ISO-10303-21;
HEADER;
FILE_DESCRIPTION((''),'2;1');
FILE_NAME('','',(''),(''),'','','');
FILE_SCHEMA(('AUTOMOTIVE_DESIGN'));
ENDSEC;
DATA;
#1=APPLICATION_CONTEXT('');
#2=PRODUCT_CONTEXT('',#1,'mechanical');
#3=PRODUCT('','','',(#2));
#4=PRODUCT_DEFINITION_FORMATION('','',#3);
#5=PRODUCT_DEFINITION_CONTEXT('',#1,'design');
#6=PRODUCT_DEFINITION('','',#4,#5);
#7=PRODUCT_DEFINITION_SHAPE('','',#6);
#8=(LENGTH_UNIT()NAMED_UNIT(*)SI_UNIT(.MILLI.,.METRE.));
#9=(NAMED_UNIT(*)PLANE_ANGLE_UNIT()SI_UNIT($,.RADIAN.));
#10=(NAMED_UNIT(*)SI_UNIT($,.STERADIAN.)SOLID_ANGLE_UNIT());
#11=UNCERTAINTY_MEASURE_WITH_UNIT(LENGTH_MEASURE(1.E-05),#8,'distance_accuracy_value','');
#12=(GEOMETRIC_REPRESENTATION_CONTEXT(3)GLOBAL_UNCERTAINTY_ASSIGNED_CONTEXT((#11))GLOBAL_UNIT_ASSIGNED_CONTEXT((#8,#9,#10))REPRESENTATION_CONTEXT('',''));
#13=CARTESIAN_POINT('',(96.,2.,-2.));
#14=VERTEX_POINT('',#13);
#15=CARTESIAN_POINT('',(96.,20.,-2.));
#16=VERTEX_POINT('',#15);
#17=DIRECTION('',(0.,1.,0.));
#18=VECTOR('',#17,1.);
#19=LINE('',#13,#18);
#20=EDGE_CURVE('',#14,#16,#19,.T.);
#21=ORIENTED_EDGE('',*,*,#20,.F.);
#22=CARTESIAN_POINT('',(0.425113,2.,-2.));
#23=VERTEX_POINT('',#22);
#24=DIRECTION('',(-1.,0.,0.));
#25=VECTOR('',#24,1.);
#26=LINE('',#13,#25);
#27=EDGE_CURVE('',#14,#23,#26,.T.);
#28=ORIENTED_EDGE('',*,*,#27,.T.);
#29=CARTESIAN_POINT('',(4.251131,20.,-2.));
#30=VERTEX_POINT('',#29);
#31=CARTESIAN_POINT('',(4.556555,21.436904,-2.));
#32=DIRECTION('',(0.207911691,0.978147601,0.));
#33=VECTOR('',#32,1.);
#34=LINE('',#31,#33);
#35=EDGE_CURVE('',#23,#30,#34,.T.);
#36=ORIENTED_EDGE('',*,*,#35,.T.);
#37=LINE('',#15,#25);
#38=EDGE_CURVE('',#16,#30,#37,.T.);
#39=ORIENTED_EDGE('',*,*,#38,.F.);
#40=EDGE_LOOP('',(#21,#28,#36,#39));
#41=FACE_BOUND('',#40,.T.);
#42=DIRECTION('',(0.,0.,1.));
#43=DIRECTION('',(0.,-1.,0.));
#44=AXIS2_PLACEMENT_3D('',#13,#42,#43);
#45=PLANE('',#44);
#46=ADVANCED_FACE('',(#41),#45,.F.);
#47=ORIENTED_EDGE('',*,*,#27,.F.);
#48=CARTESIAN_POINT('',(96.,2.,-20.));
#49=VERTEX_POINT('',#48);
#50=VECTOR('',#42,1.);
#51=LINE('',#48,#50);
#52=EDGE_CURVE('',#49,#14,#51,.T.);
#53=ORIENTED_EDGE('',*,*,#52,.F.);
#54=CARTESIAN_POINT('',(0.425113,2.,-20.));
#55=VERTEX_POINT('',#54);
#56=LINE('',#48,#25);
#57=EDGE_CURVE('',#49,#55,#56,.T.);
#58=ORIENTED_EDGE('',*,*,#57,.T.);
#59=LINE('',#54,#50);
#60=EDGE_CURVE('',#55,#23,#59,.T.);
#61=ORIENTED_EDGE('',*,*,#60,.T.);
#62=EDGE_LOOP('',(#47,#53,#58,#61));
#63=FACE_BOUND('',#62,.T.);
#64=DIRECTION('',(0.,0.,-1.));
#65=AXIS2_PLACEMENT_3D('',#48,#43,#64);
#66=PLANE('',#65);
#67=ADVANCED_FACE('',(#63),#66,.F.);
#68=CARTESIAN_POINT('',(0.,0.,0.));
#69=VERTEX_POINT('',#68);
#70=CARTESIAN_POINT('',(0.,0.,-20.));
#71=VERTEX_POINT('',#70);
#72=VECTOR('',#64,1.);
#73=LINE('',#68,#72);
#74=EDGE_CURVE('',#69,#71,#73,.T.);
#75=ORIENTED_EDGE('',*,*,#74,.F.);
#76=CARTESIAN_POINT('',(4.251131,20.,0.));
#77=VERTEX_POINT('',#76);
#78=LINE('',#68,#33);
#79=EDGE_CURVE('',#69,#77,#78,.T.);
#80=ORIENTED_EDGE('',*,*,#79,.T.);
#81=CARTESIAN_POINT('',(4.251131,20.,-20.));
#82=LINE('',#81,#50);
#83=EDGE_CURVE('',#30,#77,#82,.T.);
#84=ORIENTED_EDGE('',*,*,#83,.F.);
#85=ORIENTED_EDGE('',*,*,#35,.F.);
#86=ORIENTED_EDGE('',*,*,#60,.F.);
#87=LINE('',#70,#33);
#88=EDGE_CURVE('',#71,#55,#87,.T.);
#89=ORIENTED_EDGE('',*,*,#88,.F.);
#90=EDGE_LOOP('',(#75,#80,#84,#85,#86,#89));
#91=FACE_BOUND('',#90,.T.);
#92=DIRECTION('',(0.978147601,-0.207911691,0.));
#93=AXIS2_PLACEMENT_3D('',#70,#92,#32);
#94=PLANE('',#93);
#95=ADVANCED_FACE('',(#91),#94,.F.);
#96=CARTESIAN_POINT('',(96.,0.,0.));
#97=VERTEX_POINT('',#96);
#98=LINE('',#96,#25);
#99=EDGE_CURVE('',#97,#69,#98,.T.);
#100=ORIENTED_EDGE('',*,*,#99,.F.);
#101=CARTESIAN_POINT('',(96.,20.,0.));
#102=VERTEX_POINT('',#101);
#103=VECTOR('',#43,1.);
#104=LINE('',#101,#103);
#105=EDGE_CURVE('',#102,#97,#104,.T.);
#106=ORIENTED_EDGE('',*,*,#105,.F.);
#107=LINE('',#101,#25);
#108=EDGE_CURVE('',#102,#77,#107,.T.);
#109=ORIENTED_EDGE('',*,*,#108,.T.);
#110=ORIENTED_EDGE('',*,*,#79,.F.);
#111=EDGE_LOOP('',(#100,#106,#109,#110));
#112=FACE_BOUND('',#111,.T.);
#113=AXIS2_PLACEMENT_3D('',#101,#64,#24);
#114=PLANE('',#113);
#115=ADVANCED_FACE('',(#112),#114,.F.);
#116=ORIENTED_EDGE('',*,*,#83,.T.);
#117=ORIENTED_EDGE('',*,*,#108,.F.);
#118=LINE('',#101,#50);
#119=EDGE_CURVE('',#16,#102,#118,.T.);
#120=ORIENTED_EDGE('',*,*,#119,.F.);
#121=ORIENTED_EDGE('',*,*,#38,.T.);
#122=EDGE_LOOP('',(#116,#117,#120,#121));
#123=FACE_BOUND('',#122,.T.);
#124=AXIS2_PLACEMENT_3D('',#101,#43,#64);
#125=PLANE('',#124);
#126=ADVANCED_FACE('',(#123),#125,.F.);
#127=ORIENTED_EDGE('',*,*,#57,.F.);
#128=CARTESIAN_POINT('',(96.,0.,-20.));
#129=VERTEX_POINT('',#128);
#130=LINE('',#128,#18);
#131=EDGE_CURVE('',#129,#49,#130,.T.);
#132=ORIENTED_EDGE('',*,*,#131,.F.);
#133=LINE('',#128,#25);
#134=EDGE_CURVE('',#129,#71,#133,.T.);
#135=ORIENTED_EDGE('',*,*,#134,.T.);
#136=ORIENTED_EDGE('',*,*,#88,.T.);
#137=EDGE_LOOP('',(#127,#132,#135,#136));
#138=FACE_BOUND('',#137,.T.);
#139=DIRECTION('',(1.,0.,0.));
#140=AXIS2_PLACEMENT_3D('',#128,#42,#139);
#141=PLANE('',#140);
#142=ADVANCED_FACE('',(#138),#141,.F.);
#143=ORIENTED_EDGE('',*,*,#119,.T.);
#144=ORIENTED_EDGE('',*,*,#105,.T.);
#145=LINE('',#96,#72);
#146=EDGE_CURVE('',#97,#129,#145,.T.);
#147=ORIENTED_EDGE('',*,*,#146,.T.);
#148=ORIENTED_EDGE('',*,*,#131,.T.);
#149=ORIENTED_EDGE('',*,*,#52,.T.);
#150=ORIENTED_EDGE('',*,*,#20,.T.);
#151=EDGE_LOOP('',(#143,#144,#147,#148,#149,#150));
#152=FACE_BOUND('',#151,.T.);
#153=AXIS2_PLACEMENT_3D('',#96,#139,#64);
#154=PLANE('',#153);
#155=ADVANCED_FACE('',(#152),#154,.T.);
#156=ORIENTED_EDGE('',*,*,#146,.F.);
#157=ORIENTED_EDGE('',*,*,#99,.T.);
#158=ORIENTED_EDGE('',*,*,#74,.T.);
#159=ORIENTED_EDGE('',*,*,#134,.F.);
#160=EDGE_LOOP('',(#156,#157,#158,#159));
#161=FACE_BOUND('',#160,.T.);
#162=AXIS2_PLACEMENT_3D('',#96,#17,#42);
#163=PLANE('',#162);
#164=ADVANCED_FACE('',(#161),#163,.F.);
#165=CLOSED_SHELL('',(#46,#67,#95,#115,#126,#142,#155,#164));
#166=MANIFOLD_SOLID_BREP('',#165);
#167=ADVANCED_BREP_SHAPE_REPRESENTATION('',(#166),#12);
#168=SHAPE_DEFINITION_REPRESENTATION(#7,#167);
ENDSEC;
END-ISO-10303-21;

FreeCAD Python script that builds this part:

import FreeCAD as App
import Part
import Sketcher

V = App.Vector
Q = App.Units.Quantity

doc = App.newDocument("Part")
params = doc.addObject("Spreadsheet::Sheet", "Params")
for row, (alias, value) in enumerate([
    ("sketch1_width", "20 mm"),
    ("sketch1_width2", "2 mm"),
    ("pad1_length", "96 mm"),
    ("sketch2_height", "20 mm"),
], start=1):
    params.set(f"A{row}", alias)
    params.set(f"B{row}", "=" + value)
    params.setAlias(f"B{row}", alias)

body = doc.addObject("PartDesign::Body", "Body")

# Sketch on YZ plane
sketch1 = body.newObject("Sketcher::SketchObject", "Sketch")
sketch1.AttachmentSupport = (doc.getObject("YZ_Plane"), [""])
sketch1.MapMode = "FlatFace"
sketch1.addGeometry([
    Part.LineSegment(V(20, 0, 0), V(0, 0, 0)),  # 0
    Part.LineSegment(V(0, 0, 0), V(0, -20, 0)),  # 1
    Part.LineSegment(V(0, -20, 0), V(2, -20, 0)),  # 2
    Part.LineSegment(V(2, -20, 0), V(2, -2, 0)),  # 3
    Part.LineSegment(V(2, -2, 0), V(20, -2, 0)),  # 4
    Part.LineSegment(V(20, -2, 0), V(20, 0, 0)),  # 5
], False)
sketch1.addConstraint([
    Sketcher.Constraint("Coincident", 0, 2, 1, 1),
    Sketcher.Constraint("Coincident", 1, 2, 2, 1),
    Sketcher.Constraint("Coincident", 2, 2, 3, 1),
    Sketcher.Constraint("Coincident", 3, 2, 4, 1),
    Sketcher.Constraint("Coincident", 4, 2, 5, 1),
    Sketcher.Constraint("Coincident", 5, 2, 0, 1),
    Sketcher.Constraint("Horizontal", 0),
    Sketcher.Constraint("Vertical", 1),
    Sketcher.Constraint("Horizontal", 2),
    Sketcher.Constraint("Vertical", 3),
    Sketcher.Constraint("Horizontal", 4),
    Sketcher.Constraint("Vertical", 5),
    Sketcher.Constraint("Coincident", 0, 2, -1, 1),
    Sketcher.Constraint("Equal", 0, 1),
    Sketcher.Constraint("Equal", 4, 3),
    Sketcher.Constraint("DistanceX", 0, 2, 0, 1, Q("20 mm")),
    Sketcher.Constraint("DistanceX", 2, 1, 2, 2, Q("2 mm")),
])
sketch1.setExpression("Constraints[15]", "Params.sketch1_width")
sketch1.setExpression("Constraints[16]", "Params.sketch1_width2")
pad1 = body.newObject("PartDesign::Pad", "Pad")
pad1.Profile = sketch1
pad1.setExpression("Length", "Params.pad1_length")

# Sketch on XY plane
sketch2 = body.newObject("Sketcher::SketchObject", "Sketch001")
sketch2.AttachmentSupport = (doc.getObject("XY_Plane"), [""])
sketch2.MapMode = "FlatFace"
sketch2.addGeometry([
    Part.LineSegment(V(0, 0, 0), V(4.3, 20, 0)),
    Part.LineSegment(V(4.3, 20, 0), V(0, 20, 0)),
    Part.LineSegment(V(0, 20, 0), V(0, 0, 0)),
], False)
sketch2.addConstraint([
    Sketcher.Constraint("Coincident", 0, 2, 1, 1),
    Sketcher.Constraint("Coincident", 1, 2, 2, 1),
    Sketcher.Constraint("Coincident", 2, 2, 0, 1),
    Sketcher.Constraint("Horizontal", 1),
    Sketcher.Constraint("Vertical", 2),
    Sketcher.Constraint("Coincident", 2, 2, -1, 1),
    Sketcher.Constraint("DistanceY", 2, 2, 2, 1, Q("20 mm")),
    Sketcher.Constraint("Angle", 0, Q("78 deg")),
])
sketch2.setExpression("Constraints[6]", "Params.sketch2_height")
pocket1 = body.newObject("PartDesign::Pocket", "Pocket")
pocket1.Profile = sketch2
pocket1.Type = "ThroughAll"

doc.recompute()
